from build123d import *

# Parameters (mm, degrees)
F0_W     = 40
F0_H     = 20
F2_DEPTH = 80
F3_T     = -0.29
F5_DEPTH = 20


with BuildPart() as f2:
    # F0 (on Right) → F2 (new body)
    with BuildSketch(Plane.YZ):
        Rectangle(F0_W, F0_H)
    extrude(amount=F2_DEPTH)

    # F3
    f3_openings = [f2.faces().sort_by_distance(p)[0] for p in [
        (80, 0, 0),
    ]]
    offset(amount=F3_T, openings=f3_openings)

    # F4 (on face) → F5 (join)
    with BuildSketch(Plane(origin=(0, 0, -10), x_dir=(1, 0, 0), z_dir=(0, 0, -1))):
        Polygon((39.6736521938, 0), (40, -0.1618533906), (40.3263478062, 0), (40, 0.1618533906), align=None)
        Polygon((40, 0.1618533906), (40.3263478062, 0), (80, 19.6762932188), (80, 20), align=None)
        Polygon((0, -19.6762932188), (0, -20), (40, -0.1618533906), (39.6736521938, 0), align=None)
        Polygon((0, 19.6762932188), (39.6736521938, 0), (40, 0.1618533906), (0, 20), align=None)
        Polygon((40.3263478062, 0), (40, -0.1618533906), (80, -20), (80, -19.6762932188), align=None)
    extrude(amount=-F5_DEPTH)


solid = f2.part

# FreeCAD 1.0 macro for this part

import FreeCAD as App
import Part
import Sketcher
from FreeCAD import Vector


def faces_at(feature, points):
    """Names of the faces that lie closest to the given points."""
    faces = feature.Shape.Faces
    near = lambda p: min(range(len(faces)), key=lambda i: faces[i].distToShape(Part.Vertex(*p))[0])
    return sorted({f"Face{near(p) + 1}" for p in points})

doc = App.newDocument("Part")
body = doc.addObject("PartDesign::Body", "Body")

# Sketch on YZ plane
sketch1 = body.newObject("Sketcher::SketchObject", "Sketch")
sketch1.AttachmentSupport = (doc.getObject("YZ_Plane"), [""])
sketch1.MapMode = "FlatFace"
sketch1.addGeometry([
    Part.LineSegment(Vector(-20, 10, 0), Vector(-20, -10, 0)),
    Part.LineSegment(Vector(-20, -10, 0), Vector(20, -10, 0)),
    Part.LineSegment(Vector(20, -10, 0), Vector(20, 10, 0)),
    Part.LineSegment(Vector(20, 10, 0), Vector(-20, 10, 0)),
], False)
sketch1.addConstraint([
    Sketcher.Constraint("Coincident", 0, 2, 1, 1),
    Sketcher.Constraint("Coincident", 1, 2, 2, 1),
    Sketcher.Constraint("Coincident", 2, 2, 3, 1),
    Sketcher.Constraint("Coincident", 3, 2, 0, 1),
    Sketcher.Constraint("Vertical", 0),
    Sketcher.Constraint("Horizontal", 1),
    Sketcher.Constraint("Vertical", 2),
    Sketcher.Constraint("Horizontal", 3),
    Sketcher.Constraint("Symmetric", 0, 2, 2, 2, -1, 1),
    Sketcher.Constraint("DistanceX", 1, 1, 1, 2, 40.0),
    Sketcher.Constraint("DistanceY", 0, 2, 0, 1, 20.0),
])
pad1 = body.newObject("PartDesign::Pad", "Pad")
pad1.Profile = sketch1
pad1.Length = 80
doc.recompute()

thickness = body.newObject("PartDesign::Thickness", "Thickness")
thickness.Base = (pad1, faces_at(pad1, [(80, 0, 0)]))
thickness.Value = 0.29
thickness.Reversed = True
thickness.Join = "Arc"

# Sketch on XY plane
sketch2 = body.newObject("Sketcher::SketchObject", "Sketch001")
sketch2.AttachmentSupport = (doc.getObject("XY_Plane"), [""])
sketch2.MapMode = "FlatFace"
sketch2.AttachmentOffset = App.Placement(Vector(0, 0, -10), App.Rotation())
sketch2.addGeometry([
    Part.LineSegment(Vector(40.326348, 0, 0), Vector(80, -19.676293, 0)),  # 0
    Part.LineSegment(Vector(80, -19.676293, 0), Vector(80, -20, 0)),  # 1
    Part.LineSegment(Vector(80, -20, 0), Vector(40, -0.161853, 0)),  # 2
    Part.LineSegment(Vector(40, -0.161853, 0), Vector(0, -20, 0)),  # 3
    Part.LineSegment(Vector(0, -20, 0), Vector(0, -19.676293, 0)),  # 4
    Part.LineSegment(Vector(0, -19.676293, 0), Vector(39.673652, 0, 0)),  # 5
    Part.LineSegment(Vector(39.673652, 0, 0), Vector(0, 19.676293, 0)),  # 6
    Part.LineSegment(Vector(0, 19.676293, 0), Vector(0, 20, 0)),  # 7
    Part.LineSegment(Vector(0, 20, 0), Vector(40, 0.161853, 0)),  # 8
    Part.LineSegment(Vector(40, 0.161853, 0), Vector(80, 20, 0)),  # 9
    Part.LineSegment(Vector(80, 20, 0), Vector(80, 19.676293, 0)),  # 10
    Part.LineSegment(Vector(80, 19.676293, 0), Vector(40.326348, 0, 0)),  # 11
], False)
sketch2.addConstraint([
    Sketcher.Constraint("Coincident", 0, 2, 1, 1),
    Sketcher.Constraint("Coincident", 1, 2, 2, 1),
    Sketcher.Constraint("Coincident", 2, 2, 3, 1),
    Sketcher.Constraint("Coincident", 3, 2, 4, 1),
    Sketcher.Constraint("Coincident", 4, 2, 5, 1),
    Sketcher.Constraint("Coincident", 5, 2, 6, 1),
    Sketcher.Constraint("Coincident", 6, 2, 7, 1),
    Sketcher.Constraint("Coincident", 7, 2, 8, 1),
    Sketcher.Constraint("Coincident", 8, 2, 9, 1),
    Sketcher.Constraint("Coincident", 9, 2, 10, 1),
    Sketcher.Constraint("Coincident", 10, 2, 11, 1),
    Sketcher.Constraint("Coincident", 11, 2, 0, 1),
    Sketcher.Constraint("Vertical", 1),
    Sketcher.Constraint("Vertical", 4),
    Sketcher.Constraint("Vertical", 7),
    Sketcher.Constraint("Vertical", 10),
    Sketcher.Constraint("Symmetric", 4, 2, 6, 2, -1, 1),
    Sketcher.Constraint("Symmetric", 3, 2, 7, 2, -1),
    Sketcher.Constraint("Symmetric", 2, 2, 8, 2, -1),
    Sketcher.Constraint("Symmetric", 1, 2, 9, 2, -1),
    Sketcher.Constraint("PointOnObject", 5, 2, -1),
    Sketcher.Constraint("PointOnObject", 11, 2, -1),
    Sketcher.Constraint("Parallel", 0, 2),
    Sketcher.Constraint("Parallel", 3, 5),
    Sketcher.Constraint("Parallel", 2, 6),
    Sketcher.Constraint("Parallel", 9, 11),
    Sketcher.Constraint("Horizontal", 1, 2, 3, 2),
    Sketcher.Constraint("Horizontal", 0, 2, 4, 2),
    Sketcher.Constraint("DistanceX", -1, 1, 0, 2, 80.0),
    Sketcher.Constraint("DistanceY", 1, 2, -1, 1, 20.0),
    Sketcher.Constraint("Distance", 0, 44.284932),
    Sketcher.Constraint("Distance", 2, 44.649211),
])
pad2 = body.newObject("PartDesign::Pad", "Pad001")
pad2.Profile = sketch2
pad2.Length = 20

doc.recompute()
